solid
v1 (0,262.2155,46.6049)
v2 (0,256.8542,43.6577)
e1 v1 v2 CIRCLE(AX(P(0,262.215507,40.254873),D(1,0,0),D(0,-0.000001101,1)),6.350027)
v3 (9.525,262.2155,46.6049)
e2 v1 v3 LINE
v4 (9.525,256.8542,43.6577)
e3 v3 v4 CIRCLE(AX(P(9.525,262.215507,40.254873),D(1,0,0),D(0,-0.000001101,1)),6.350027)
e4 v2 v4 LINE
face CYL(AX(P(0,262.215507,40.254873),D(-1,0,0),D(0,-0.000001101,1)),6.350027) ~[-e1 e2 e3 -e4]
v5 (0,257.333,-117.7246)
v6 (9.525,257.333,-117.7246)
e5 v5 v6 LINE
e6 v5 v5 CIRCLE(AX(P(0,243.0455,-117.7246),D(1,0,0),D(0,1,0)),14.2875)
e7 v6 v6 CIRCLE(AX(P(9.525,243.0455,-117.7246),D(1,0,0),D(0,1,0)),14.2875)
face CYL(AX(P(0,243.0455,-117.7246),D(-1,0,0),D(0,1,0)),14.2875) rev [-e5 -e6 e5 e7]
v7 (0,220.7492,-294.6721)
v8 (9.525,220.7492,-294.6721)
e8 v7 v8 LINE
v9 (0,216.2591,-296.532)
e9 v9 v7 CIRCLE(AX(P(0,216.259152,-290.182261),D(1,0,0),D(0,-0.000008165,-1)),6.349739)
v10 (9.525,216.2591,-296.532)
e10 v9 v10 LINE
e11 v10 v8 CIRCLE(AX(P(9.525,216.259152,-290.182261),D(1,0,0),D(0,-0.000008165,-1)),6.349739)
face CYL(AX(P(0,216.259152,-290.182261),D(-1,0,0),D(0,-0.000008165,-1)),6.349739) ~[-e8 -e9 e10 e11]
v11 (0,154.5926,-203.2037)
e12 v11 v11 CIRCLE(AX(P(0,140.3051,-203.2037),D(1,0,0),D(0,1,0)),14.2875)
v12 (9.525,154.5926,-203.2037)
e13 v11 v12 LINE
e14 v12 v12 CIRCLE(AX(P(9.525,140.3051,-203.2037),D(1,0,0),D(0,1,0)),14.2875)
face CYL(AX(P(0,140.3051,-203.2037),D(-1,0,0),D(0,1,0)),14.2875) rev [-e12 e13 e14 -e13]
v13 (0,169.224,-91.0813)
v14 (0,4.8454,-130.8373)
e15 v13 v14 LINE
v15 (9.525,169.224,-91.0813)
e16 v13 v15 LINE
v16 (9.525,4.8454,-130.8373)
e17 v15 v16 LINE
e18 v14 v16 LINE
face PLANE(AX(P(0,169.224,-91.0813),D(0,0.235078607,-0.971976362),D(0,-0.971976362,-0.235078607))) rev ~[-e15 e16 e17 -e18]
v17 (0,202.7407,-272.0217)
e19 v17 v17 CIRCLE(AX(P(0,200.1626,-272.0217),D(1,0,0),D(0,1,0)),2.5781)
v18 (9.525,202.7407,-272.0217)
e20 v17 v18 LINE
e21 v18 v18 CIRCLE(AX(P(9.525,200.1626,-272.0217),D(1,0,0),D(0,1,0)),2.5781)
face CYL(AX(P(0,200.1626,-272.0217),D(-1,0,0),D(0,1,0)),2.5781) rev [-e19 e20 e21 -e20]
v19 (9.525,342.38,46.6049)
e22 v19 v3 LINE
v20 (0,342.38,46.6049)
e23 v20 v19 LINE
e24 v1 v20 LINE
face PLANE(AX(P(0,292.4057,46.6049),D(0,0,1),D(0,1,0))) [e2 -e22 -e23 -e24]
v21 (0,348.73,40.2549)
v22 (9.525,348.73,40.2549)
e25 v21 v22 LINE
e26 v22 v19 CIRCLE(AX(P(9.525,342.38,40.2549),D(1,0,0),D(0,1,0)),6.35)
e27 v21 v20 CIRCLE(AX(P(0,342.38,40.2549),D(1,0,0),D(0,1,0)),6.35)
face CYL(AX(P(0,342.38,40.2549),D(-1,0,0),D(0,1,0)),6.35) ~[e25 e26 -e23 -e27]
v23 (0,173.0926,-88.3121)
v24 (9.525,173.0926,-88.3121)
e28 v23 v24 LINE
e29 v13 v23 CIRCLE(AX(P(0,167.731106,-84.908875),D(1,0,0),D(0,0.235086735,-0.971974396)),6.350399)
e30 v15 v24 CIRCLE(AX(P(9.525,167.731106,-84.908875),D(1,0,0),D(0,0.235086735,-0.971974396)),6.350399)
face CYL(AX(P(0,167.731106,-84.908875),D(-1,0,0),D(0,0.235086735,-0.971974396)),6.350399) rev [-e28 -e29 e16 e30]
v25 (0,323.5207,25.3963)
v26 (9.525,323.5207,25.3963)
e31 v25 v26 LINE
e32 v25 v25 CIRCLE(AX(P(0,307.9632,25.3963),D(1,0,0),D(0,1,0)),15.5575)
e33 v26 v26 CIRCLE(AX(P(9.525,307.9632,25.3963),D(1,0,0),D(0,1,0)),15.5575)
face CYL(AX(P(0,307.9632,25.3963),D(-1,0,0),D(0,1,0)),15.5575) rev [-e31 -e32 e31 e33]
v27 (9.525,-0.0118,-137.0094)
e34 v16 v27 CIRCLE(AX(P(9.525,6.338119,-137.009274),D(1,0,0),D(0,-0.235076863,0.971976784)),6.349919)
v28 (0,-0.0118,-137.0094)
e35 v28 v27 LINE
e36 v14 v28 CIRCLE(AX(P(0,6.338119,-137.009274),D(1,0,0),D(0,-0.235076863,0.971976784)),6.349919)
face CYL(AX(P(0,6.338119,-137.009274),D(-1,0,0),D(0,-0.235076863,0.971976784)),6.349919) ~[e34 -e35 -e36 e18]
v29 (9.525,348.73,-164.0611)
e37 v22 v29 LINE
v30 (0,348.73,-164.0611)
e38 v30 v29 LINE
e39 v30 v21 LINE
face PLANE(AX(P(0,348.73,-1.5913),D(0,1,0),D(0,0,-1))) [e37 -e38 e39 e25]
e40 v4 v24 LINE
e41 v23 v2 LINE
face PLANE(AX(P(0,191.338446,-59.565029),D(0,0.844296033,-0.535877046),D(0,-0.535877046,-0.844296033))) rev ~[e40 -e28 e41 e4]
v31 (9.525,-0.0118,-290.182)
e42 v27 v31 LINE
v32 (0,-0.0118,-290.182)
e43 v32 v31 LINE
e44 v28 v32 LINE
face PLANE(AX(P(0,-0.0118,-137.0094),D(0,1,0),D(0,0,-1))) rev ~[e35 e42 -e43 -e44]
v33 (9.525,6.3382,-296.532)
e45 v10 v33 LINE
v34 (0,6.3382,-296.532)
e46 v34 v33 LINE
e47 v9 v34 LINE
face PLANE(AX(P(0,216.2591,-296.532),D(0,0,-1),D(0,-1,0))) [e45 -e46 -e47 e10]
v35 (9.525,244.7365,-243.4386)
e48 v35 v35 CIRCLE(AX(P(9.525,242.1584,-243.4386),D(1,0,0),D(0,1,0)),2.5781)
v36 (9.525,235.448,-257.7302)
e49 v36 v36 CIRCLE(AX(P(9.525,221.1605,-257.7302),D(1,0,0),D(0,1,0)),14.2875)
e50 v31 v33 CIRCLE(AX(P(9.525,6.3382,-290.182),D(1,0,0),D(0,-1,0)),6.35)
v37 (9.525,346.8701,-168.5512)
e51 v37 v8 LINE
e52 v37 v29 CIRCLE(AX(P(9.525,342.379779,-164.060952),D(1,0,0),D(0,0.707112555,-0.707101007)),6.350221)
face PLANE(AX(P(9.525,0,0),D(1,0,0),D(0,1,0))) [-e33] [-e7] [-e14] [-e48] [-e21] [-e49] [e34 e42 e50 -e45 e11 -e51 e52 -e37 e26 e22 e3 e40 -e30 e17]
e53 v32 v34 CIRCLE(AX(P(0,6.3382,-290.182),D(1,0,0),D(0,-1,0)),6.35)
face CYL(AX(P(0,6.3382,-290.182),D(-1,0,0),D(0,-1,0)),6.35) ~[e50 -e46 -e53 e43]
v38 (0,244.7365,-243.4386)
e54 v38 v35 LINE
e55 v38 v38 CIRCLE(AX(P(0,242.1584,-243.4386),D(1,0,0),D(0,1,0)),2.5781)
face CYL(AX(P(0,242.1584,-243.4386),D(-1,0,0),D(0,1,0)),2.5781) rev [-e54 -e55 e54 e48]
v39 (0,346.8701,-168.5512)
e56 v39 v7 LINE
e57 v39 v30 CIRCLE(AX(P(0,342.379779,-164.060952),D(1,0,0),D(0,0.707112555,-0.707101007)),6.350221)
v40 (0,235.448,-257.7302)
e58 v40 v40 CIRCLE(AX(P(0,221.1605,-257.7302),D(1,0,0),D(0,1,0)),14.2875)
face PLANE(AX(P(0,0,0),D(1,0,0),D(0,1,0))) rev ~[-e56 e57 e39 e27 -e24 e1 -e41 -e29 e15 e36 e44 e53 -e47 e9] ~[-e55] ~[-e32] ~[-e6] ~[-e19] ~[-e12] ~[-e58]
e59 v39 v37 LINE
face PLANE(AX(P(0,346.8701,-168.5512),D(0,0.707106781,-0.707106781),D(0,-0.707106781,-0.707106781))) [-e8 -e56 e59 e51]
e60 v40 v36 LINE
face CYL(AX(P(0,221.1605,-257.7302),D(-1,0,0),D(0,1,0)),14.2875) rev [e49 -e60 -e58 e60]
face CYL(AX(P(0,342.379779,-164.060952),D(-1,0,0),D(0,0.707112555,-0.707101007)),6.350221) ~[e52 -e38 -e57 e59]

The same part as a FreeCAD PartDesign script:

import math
import FreeCAD as App
import Part
import Sketcher

V = App.Vector
Q = App.Units.Quantity

doc = App.newDocument("Part")
body = doc.addObject("PartDesign::Body", "Body")

sketch1 = body.newObject("Sketcher::SketchObject", "Sketch")
sketch1.AttachmentSupport = (doc.getObject("YZ_Plane"), [""])
sketch1.MapMode = "FlatFace"
sketch1.addGeometry(Part.LineSegment(V(348.73, -164.0611, 0), V(348.73, 40.2549, 0)), False)
sketch1.addGeometry(Part.ArcOfCircle(Part.Circle(V(342.38, 40.2549, 0), V(0, 0, 1), 6.35), math.radians(0), math.radians(90)), False)
sketch1.addGeometry(Part.LineSegment(V(342.38, 46.6049, 0), V(262.2155, 46.6049, 0)), False)
sketch1.addGeometry(Part.ArcOfCircle(Part.Circle(V(262.2155, 40.2549, 0), V(0, 0, 1), 6.35), math.radians(90), math.radians(147.596834)), False)
sketch1.addGeometry(Part.LineSegment(V(256.8542, 43.6577, 0), V(173.0926, -88.3121, 0)), False)
sketch1.addGeometry(Part.ArcOfCircle(Part.Circle(V(167.7313, -84.9093, 0), V(0, 0, 1), 6.34994), math.radians(-76.404069), math.radians(-32.403166)), False)
sketch1.addGeometry(Part.LineSegment(V(169.224, -91.0813, 0), V(4.8454, -130.8373, 0)), False)
sketch1.addGeometry(Part.ArcOfCircle(Part.Circle(V(6.3382, -137.0094, 0), V(0, 0, 1), 6.350061), math.radians(103.596596), math.radians(180)), False)
sketch1.addGeometry(Part.LineSegment(V(-0.0118, -137.0094, 0), V(-0.0118, -290.182, 0)), False)
sketch1.addGeometry(Part.ArcOfCircle(Part.Circle(V(6.3382, -290.182, 0), V(0, 0, 1), 6.35), math.radians(180), math.radians(270)), False)
sketch1.addGeometry(Part.LineSegment(V(6.3382, -296.532, 0), V(216.2591, -296.532, 0)), False)
sketch1.addGeometry(Part.ArcOfCircle(Part.Circle(V(216.2591, -290.182, 0), V(0, 0, 1), 6.35), math.radians(-90), math.radians(-45)), False)
sketch1.addGeometry(Part.LineSegment(V(220.7492, -294.6721, 0), V(346.8701, -168.5512, 0)), False)
sketch1.addGeometry(Part.ArcOfCircle(Part.Circle(V(342.38, -164.0611, 0), V(0, 0, 1), 6.34996), math.radians(-45), math.radians(0)), False)
sketch1.addGeometry(Part.Circle(V(140.3051, -203.2037, 0), V(0, 0, 1), 14.2875), False)
sketch1.addGeometry(Part.Circle(V(200.1626, -272.0217, 0), V(0, 0, 1), 2.5781), False)
sketch1.addGeometry(Part.Circle(V(221.1605, -257.7302, 0), V(0, 0, 1), 14.2875), False)
sketch1.addGeometry(Part.Circle(V(242.1584, -243.4386, 0), V(0, 0, 1), 2.5781), False)
sketch1.addGeometry(Part.Circle(V(243.0455, -117.7246, 0), V(0, 0, 1), 14.2875), False)
sketch1.addGeometry(Part.Circle(V(307.9632, 25.3963, 0), V(0, 0, 1), 15.5575), False)
sketch1.addConstraint(Sketcher.Constraint("Coincident", 0, 2, 1, 1))
sketch1.addConstraint(Sketcher.Constraint("Coincident", 1, 2, 2, 1))
sketch1.addConstraint(Sketcher.Constraint("Coincident", 2, 2, 3, 1))
sketch1.addConstraint(Sketcher.Constraint("Coincident", 3, 2, 4, 1))
sketch1.addConstraint(Sketcher.Constraint("Coincident", 4, 2, 5, 2))
sketch1.addConstraint(Sketcher.Constraint("Coincident", 5, 1, 6, 1))
sketch1.addConstraint(Sketcher.Constraint("Coincident", 6, 2, 7, 1))
sketch1.addConstraint(Sketcher.Constraint("Coincident", 7, 2, 8, 1))
sketch1.addConstraint(Sketcher.Constraint("Coincident", 8, 2, 9, 1))
sketch1.addConstraint(Sketcher.Constraint("Coincident", 9, 2, 10, 1))
sketch1.addConstraint(Sketcher.Constraint("Coincident", 10, 2, 11, 1))
sketch1.addConstraint(Sketcher.Constraint("Coincident", 11, 2, 12, 1))
sketch1.addConstraint(Sketcher.Constraint("Coincident", 12, 2, 13, 1))
sketch1.addConstraint(Sketcher.Constraint("Coincident", 13, 2, 0, 1))
sketch1.addConstraint(Sketcher.Constraint("Vertical", 0))
sketch1.addConstraint(Sketcher.Constraint("Horizontal", 2))
sketch1.addConstraint(Sketcher.Constraint("Vertical", 8))
sketch1.addConstraint(Sketcher.Constraint("Horizontal", 10))
sketch1.addConstraint(Sketcher.Constraint("Radius", 1, Q("0.25 in")))
sketch1.addConstraint(Sketcher.Constraint("Radius", 3, Q("0.25 in")))
sketch1.addConstraint(Sketcher.Constraint("Radius", 5, Q("0.25 in")))
sketch1.addConstraint(Sketcher.Constraint("Radius", 7, Q("0.25 in")))
sketch1.addConstraint(Sketcher.Constraint("Radius", 9, Q("0.25 in")))
sketch1.addConstraint(Sketcher.Constraint("Radius", 11, Q("0.25 in")))
sketch1.addConstraint(Sketcher.Constraint("Radius", 13, Q("0.25 in")))
sketch1.addConstraint(Sketcher.Constraint("Diameter", 14, Q("1.125 in")))
sketch1.addConstraint(Sketcher.Constraint("Diameter", 15, Q("0.203 in")))
sketch1.addConstraint(Sketcher.Constraint("Diameter", 16, Q("1.125 in")))
sketch1.addConstraint(Sketcher.Constraint("Diameter", 17, Q("0.203 in")))
sketch1.addConstraint(Sketcher.Constraint("Diameter", 18, Q("1.125 in")))
sketch1.addConstraint(Sketcher.Constraint("DistanceX", 1, 2, 0, 2, Q("0.25 in")))
sketch1.addConstraint(Sketcher.Constraint("DistanceY", 0, 2, 1, 2, Q("0.25 in")))
sketch1.addConstraint(Sketcher.Constraint("DistanceX", 8, 2, 9, 2, Q("0.25 in")))
sketch1.addConstraint(Sketcher.Constraint("DistanceY", 9, 2, 8, 2, Q("0.25 in")))
sketch1.addConstraint(Sketcher.Constraint("Diameter", 19, Q("1.225 in")))
sketch1.addConstraint(Sketcher.Constraint("DistanceX", 7, 3, 1, 3, Q("13.23 in")))
sketch1.addConstraint(Sketcher.Constraint("DistanceX", 5, 1, 3, 2, Q("3.45 in")))
sketch1.addConstraint(Sketcher.Constraint("DistanceX", 10, 1, 10, 2, Q("8.2646 in")))
sketch1.addConstraint(Sketcher.Constraint("DistanceX", 19, 3, 1, 3, Q("1.355 in")))
sketch1.addConstraint(Sketcher.Constraint("DistanceY", 5, 1, 5, 3, Q("0.243 in")))
sketch1.addConstraint(Sketcher.Constraint("DistanceY", 7, 3, 6, 2, Q("0.243 in")))
sketch1.addConstraint(Sketcher.Constraint("DistanceY", 7, 2, 6, 2, Q("0.243 in")))
sketch1.addConstraint(Sketcher.Constraint("DistanceX", 2, 2, 2, 1, Q("80.1645 mm")))
sketch1.addConstraint(Sketcher.Constraint("DistanceY", 0, 1, 0, 2, Q("204.316 mm")))
sketch1.addConstraint(Sketcher.Constraint("DistanceY", 8, 2, 8, 1, Q("153.1726 mm")))
sketch1.addConstraint(Sketcher.Constraint("DistanceX", -1, 1, 5, 3, Q("6.6036 in")))
sketch1.addConstraint(Sketcher.Constraint("DistanceY", 9, 3, -1, 1, Q("11.4245 in")))
sketch1.addConstraint(Sketcher.Constraint("DistanceY", 13, 3, -1, 1, Q("6.4591 in")))
sketch1.addConstraint(Sketcher.Constraint("DistanceX", -1, 1, 16, 3, Q("8.7071 in")))
sketch1.addConstraint(Sketcher.Constraint("DistanceX", -1, 1, 17, 3, Q("9.5338 in")))
sketch1.addConstraint(Sketcher.Constraint("DistanceY", 17, 3, -1, 1, Q("9.5842 in")))
sketch1.addConstraint(Sketcher.Constraint("DistanceY", -1, 1, 3, 2, Q("1.7188 in")))
sketch1.addConstraint(Sketcher.Constraint("DistanceX", -1, 1, 12, 2, Q("13.6563 in")))
sketch1.addConstraint(Sketcher.Constraint("DistanceY", 13, 2, -1, 1, Q("6.4591 in")))
sketch1.addConstraint(Sketcher.Constraint("DistanceX", 7, 3, 3, 3, Q("10.0739 in")))
sketch1.addConstraint(Sketcher.Constraint("DistanceY", 9, 3, 5, 3, Q("8.0816 in")))
sketch1.addConstraint(Sketcher.Constraint("DistanceX", 9, 3, 11, 3, Q("8.2646 in")))
sketch1.addConstraint(Sketcher.Constraint("DistanceX", 14, 3, 13, 3, Q("7.9557 in")))
sketch1.addConstraint(Sketcher.Constraint("DistanceX", 14, 3, 15, 3, Q("2.3566 in")))
sketch1.addConstraint(Sketcher.Constraint("DistanceX", 18, 3, 13, 3, Q("3.9108 in")))
sketch1.addConstraint(Sketcher.Constraint("DistanceY", 14, 3, 4, 2, Q("4.5233 in")))
sketch1.addConstraint(Sketcher.Constraint("DistanceX", 4, 2, 3, 2, Q("3.2977 in")))
sketch1.addConstraint(Sketcher.Constraint("DistanceX", 15, 3, 11, 2, Q("0.8105 in")))
sketch1.addConstraint(Sketcher.Constraint("DistanceY", 11, 2, 16, 3, Q("1.4544 in")))
sketch1.addConstraint(Sketcher.Constraint("DistanceY", 15, 3, -1, 1, Q("272.0217 mm")))
sketch1.addConstraint(Sketcher.Constraint("DistanceY", 18, 3, -1, 1, Q("117.7246 mm")))
sketch1.addConstraint(Sketcher.Constraint("DistanceY", -1, 1, 19, 3, Q("25.3963 mm")))
pad1 = body.newObject("PartDesign::Pad", "Pad")
pad1.Profile = sketch1
pad1.Length = Q("0.375 in")

doc.recompute()
